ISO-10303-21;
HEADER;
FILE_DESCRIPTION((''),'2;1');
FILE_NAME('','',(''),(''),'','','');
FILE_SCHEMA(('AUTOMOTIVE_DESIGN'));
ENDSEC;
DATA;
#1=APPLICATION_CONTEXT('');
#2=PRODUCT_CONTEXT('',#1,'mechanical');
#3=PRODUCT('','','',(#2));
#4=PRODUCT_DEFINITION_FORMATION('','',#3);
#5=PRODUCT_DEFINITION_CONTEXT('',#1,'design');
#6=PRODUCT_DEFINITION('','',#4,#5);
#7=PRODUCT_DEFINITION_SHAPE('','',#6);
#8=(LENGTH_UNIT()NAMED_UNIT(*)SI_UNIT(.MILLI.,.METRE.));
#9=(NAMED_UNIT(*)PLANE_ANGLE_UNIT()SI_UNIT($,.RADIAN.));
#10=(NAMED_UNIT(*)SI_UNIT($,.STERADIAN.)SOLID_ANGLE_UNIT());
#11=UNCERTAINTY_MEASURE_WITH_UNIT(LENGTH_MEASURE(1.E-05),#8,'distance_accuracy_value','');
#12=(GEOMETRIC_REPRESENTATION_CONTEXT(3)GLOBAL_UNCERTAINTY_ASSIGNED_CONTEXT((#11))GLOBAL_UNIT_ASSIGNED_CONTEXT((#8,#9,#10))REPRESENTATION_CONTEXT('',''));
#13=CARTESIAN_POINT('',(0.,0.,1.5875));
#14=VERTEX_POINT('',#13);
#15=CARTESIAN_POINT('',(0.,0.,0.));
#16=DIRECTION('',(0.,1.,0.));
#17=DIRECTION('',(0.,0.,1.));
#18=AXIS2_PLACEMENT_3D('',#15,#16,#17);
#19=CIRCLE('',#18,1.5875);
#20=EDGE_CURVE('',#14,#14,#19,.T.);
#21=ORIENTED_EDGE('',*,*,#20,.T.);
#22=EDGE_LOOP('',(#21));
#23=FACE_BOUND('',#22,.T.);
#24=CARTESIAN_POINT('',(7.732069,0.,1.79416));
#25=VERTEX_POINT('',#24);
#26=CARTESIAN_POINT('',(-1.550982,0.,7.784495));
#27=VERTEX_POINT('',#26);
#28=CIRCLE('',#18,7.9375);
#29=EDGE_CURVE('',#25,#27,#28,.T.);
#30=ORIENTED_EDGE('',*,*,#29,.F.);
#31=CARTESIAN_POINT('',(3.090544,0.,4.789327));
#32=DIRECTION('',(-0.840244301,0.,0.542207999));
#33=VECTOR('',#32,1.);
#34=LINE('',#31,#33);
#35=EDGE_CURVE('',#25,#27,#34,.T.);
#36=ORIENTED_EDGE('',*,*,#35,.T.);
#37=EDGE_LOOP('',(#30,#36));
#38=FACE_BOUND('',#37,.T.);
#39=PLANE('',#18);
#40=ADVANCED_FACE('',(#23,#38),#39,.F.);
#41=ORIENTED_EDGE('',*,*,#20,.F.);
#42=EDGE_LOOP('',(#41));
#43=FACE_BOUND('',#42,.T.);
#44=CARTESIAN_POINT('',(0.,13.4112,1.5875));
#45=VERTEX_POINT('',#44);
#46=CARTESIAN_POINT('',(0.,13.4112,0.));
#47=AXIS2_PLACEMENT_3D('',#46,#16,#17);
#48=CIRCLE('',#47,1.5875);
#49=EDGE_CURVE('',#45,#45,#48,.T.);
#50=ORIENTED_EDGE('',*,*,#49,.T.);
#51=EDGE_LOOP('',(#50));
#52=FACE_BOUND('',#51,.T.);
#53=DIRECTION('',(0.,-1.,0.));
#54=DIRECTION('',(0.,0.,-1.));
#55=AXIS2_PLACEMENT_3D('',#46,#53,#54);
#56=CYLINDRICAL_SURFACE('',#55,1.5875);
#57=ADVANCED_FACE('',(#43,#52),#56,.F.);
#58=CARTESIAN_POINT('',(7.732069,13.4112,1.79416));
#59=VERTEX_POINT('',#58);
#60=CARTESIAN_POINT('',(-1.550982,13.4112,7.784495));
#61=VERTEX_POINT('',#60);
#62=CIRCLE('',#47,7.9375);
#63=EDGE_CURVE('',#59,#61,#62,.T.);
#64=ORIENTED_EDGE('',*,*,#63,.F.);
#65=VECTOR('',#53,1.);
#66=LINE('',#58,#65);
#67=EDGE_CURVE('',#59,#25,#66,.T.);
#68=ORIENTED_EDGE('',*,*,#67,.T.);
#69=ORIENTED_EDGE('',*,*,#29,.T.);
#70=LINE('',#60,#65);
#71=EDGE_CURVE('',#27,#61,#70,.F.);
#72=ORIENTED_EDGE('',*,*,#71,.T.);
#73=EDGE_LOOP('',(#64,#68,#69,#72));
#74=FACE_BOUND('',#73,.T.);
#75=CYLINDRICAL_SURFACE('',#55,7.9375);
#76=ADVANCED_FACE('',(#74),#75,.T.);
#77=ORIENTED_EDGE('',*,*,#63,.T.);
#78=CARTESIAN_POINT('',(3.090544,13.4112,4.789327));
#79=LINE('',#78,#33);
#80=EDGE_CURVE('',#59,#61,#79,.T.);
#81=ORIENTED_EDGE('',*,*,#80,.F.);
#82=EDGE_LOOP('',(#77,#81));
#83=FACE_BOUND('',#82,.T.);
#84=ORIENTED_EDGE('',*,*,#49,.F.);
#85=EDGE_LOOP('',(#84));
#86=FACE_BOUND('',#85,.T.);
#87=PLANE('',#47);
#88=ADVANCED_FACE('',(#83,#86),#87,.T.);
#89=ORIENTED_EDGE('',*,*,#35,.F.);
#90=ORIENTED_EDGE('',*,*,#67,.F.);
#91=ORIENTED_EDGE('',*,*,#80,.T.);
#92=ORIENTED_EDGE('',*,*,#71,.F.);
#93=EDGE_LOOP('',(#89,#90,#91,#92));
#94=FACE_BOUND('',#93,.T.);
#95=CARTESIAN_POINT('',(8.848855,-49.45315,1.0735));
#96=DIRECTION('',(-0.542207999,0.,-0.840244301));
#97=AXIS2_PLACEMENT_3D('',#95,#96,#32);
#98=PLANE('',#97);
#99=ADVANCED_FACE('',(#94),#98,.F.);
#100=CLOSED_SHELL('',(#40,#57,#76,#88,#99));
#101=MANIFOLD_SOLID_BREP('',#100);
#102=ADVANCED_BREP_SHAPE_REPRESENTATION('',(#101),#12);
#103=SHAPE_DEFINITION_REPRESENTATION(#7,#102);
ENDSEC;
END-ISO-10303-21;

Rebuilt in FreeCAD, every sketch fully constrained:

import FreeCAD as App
import Part
import Sketcher
from FreeCAD import Vector
Q = App.Units.Quantity


def add_polygon(sketch, points):
    """Adds a closed chain of lines whose ends are joined by coincident constraints."""
    first, n = sketch.GeometryCount, len(points)
    for a, b in zip(points, points[1:] + points[:1]):
        sketch.addGeometry(Part.LineSegment(App.Vector(*a, 0), App.Vector(*b, 0)), False)
    for i in range(n):
        sketch.addConstraint(Sketcher.Constraint("Coincident", first + i, 2, first + (i + 1) % n, 1))

doc = App.newDocument("Part")
body = doc.addObject("PartDesign::Body", "Body")

sketch1 = doc.addObject("Sketcher::SketchObject", "Sketch")
body.addObject(sketch1)
sketch1.AttachmentSupport = (doc.XZ_Plane, [""])
sketch1.MapMode = "FlatFace"
sketch1.addGeometry([
    Part.Circle(Vector(0, 0, 0), Vector(0, 0, 1), 7.9),
    Part.Circle(Vector(0, 0, 0), Vector(0, 0, 1), 1.6),
], False)
sketch1.addConstraint([
    Sketcher.Constraint("Coincident", 0, 3, -1, 1),
    Sketcher.Constraint("Coincident", 1, 3, -1, 1),
    Sketcher.Constraint("Diameter", 0, Q("0.625 in")),
    Sketcher.Constraint("Diameter", 1, Q("0.125 in")),
])
pad1 = doc.addObject("PartDesign::Pad", "Pad")
body.addObject(pad1)
pad1.Profile = sketch1
pad1.Length = Q("0.528 in")
pad1.Reversed = True

sketch2 = doc.addObject("Sketcher::SketchObject", "Sketch001")
body.addObject(sketch2)
sketch2.AttachmentSupport = (doc.XZ_Plane, [""])
sketch2.MapMode = "FlatFace"
add_polygon(sketch2, [(9, 1), (50, -26), (103, 57), (9, 118), (-44, 35), (-3, 9)])
sketch2.addConstraint([
    Sketcher.Constraint("Perpendicular", 0, 1),
    Sketcher.Constraint("Perpendicular", 1, 2),
    Sketcher.Constraint("Perpendicular", 2, 3),
    Sketcher.Constraint("Perpendicular", 3, 4),
    Sketcher.Constraint("Parallel", 4, 5),
    Sketcher.Constraint("Equal", 0, 4),
    Sketcher.Constraint("DistanceY", -1, 1, 5, 2, 1.0735),
    Sketcher.Constraint("Distance", 5, 13.706279),
    Sketcher.Constraint("DistanceX", -1, 1, 0, 2, 50.13192),
    Sketcher.Constraint("DistanceY", 0, 2, -1, 1, 25.566381),
    Sketcher.Constraint("DistanceX", -1, 1, 1, 2, 103.411682),
    Sketcher.Constraint("DistanceY", -1, 1, 1, 2, 56.999749),
])
pocket1 = doc.addObject("PartDesign::Pocket", "Pocket")
body.addObject(pocket1)
pocket1.Profile = sketch2
pocket1.Type = "ThroughAll"
pocket1.Midplane = True

doc.recompute()
